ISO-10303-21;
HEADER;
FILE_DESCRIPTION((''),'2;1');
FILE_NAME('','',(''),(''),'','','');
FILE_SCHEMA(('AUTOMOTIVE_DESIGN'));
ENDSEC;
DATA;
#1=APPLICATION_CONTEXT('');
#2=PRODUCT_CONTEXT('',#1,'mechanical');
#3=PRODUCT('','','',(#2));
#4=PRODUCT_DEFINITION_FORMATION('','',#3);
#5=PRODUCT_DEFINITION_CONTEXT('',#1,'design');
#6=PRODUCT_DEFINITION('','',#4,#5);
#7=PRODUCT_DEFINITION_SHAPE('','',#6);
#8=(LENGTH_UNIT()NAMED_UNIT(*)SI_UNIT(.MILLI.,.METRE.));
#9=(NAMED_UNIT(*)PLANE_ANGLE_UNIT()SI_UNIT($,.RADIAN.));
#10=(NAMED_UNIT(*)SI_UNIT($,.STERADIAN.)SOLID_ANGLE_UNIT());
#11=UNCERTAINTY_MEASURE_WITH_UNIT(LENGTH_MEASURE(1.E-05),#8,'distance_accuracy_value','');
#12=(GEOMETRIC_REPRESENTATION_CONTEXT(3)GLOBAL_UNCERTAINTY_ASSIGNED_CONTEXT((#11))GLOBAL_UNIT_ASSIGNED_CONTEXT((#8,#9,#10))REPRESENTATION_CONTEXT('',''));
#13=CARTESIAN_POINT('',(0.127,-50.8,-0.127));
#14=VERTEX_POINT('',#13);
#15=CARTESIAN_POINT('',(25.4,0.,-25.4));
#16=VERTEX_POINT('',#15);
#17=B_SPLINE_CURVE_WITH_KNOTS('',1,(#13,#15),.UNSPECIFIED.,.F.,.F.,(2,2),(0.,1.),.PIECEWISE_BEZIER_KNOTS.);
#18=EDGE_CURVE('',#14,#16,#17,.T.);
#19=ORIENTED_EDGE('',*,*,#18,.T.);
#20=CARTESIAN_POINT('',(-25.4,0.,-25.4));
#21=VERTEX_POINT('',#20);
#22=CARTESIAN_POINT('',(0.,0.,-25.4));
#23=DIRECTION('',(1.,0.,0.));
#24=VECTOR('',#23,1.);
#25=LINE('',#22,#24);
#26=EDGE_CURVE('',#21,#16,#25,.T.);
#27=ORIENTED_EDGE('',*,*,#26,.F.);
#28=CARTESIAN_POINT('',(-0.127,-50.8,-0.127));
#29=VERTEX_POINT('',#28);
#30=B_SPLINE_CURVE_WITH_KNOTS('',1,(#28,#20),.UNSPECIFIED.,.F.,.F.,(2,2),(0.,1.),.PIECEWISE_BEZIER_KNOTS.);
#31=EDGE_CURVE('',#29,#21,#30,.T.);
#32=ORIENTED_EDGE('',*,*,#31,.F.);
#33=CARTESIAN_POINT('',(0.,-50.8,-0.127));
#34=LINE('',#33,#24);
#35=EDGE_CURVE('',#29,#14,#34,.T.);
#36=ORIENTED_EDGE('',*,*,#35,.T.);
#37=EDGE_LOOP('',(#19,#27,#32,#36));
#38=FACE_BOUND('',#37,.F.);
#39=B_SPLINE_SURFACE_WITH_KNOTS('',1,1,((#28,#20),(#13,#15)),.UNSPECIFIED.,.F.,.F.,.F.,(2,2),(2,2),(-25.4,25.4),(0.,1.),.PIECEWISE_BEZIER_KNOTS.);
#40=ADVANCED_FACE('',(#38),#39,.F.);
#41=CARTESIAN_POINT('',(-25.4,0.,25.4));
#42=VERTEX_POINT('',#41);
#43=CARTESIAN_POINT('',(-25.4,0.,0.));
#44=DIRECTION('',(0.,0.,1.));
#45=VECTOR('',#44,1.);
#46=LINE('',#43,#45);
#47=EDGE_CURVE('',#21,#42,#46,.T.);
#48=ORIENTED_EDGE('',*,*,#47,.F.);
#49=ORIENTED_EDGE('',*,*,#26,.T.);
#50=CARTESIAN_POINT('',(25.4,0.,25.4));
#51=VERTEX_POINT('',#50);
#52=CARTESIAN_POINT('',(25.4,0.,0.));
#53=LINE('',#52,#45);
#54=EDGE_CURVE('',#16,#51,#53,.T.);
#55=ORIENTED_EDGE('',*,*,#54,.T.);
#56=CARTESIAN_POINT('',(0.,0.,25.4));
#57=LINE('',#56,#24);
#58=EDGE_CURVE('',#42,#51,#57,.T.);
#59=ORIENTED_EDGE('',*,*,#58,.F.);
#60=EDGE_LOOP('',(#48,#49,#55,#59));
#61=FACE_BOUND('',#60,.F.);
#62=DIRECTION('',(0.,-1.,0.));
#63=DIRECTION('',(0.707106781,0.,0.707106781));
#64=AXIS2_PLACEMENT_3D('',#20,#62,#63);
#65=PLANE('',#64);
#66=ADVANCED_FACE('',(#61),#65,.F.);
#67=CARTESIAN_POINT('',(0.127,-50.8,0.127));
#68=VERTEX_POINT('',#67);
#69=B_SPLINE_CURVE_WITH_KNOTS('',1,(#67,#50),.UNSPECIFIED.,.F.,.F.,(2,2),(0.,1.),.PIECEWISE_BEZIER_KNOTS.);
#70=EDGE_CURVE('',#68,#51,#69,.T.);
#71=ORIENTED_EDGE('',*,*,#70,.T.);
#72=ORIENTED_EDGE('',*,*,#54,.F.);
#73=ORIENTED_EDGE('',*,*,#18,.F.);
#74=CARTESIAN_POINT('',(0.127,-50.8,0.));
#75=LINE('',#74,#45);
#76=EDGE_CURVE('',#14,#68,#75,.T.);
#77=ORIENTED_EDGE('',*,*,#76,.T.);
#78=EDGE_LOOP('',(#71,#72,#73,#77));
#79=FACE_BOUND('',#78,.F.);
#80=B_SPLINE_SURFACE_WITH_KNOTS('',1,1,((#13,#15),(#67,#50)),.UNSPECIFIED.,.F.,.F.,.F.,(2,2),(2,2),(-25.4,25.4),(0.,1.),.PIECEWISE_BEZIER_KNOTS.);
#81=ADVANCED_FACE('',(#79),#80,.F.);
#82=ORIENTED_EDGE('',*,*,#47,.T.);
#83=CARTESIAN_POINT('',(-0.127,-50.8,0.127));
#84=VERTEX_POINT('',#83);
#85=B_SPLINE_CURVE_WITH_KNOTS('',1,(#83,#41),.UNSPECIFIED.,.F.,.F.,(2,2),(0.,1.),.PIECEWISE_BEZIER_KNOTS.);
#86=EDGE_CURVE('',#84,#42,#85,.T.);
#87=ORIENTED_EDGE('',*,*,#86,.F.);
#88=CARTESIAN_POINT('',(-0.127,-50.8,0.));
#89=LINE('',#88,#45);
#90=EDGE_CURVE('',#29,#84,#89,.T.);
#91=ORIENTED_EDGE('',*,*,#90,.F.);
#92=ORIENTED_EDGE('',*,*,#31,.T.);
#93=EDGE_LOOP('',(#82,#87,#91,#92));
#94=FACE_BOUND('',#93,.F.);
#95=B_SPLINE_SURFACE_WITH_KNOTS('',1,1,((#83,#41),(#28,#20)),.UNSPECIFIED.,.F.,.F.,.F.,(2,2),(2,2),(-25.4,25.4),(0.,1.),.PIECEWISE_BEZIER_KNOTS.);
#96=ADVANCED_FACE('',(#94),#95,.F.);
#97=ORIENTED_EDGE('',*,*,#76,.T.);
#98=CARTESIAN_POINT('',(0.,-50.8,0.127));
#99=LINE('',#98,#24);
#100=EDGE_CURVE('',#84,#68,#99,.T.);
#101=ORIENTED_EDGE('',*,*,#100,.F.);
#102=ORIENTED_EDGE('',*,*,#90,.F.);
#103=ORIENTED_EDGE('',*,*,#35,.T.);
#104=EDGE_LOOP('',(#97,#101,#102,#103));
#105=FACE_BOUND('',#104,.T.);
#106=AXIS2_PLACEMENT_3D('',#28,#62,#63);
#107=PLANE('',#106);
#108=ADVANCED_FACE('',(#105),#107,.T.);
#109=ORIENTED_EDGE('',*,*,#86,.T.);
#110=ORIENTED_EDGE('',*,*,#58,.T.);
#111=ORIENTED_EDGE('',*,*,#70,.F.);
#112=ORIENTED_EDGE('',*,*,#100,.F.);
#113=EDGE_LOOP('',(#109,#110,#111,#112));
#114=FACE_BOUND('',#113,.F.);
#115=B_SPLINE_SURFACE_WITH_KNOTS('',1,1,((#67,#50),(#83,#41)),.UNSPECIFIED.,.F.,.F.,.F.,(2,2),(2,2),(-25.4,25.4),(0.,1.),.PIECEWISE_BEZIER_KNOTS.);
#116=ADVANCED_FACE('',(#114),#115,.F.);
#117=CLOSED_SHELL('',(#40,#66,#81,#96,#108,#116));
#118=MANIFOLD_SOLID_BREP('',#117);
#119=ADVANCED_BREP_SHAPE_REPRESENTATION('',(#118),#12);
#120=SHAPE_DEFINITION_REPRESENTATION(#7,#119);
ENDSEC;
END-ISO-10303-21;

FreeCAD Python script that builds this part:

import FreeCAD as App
import Part
import Sketcher
Q = App.Units.Quantity


def add_polygon(sketch, points):
    """Adds a closed chain of lines whose ends are joined by coincident constraints."""
    first, n = sketch.GeometryCount, len(points)
    for a, b in zip(points, points[1:] + points[:1]):
        sketch.addGeometry(Part.LineSegment(App.Vector(*a, 0), App.Vector(*b, 0)), False)
    for i in range(n):
        sketch.addConstraint(Sketcher.Constraint("Coincident", first + i, 2, first + (i + 1) % n, 1))

doc = App.newDocument("Part")
params = doc.addObject("Spreadsheet::Sheet", "Params")
for row, (alias, value) in enumerate([
    ("sketch1_width", "0.01 in"),
    ("sketch2_width", "2 in"),
], start=1):
    params.set(f"A{row}", alias)
    params.set(f"B{row}", "=" + value)
    params.setAlias(f"B{row}", alias)

body = doc.addObject("PartDesign::Body", "Body")

sketch1 = body.newObject("Sketcher::SketchObject", "Sketch")
sketch1.AttachmentSupport = (doc.getObject("XZ_Plane"), [""])
sketch1.MapMode = "FlatFace"
sketch1.AttachmentOffset = App.Placement(App.Vector(0, 0, 2 * 25.4), App.Rotation())
add_polygon(sketch1, [(-0.13, 0.13), (-0.13, -0.13), (0.13, -0.13), (0.13, 0.13)])
sketch1.addConstraint(Sketcher.Constraint("Vertical", 0))
sketch1.addConstraint(Sketcher.Constraint("Horizontal", 1))
sketch1.addConstraint(Sketcher.Constraint("Vertical", 2))
sketch1.addConstraint(Sketcher.Constraint("Horizontal", 3))
sketch1.addConstraint(Sketcher.Constraint("Symmetric", 0, 2, 2, 2, -1, 1))
sketch1.addConstraint(Sketcher.Constraint("Equal", 3, 0))
sketch1.addConstraint(Sketcher.Constraint("DistanceX", 1, 1, 1, 2, Q("0.01 in")))
sketch1.setExpression("Constraints[10]", "Params.sketch1_width")

sketch2 = body.newObject("Sketcher::SketchObject", "Sketch001")
sketch2.AttachmentSupport = (doc.getObject("XZ_Plane"), [""])
sketch2.MapMode = "FlatFace"
add_polygon(sketch2, [(-25, 25), (-25, -25), (25, -25), (25, 25)])
sketch2.addConstraint(Sketcher.Constraint("Vertical", 0))
sketch2.addConstraint(Sketcher.Constraint("Horizontal", 1))
sketch2.addConstraint(Sketcher.Constraint("Vertical", 2))
sketch2.addConstraint(Sketcher.Constraint("Horizontal", 3))
sketch2.addConstraint(Sketcher.Constraint("Symmetric", 0, 2, 2, 2, -1, 1))
sketch2.addConstraint(Sketcher.Constraint("Equal", 3, 0))
sketch2.addConstraint(Sketcher.Constraint("DistanceX", 1, 1, 1, 2, Q("2 in")))
sketch2.setExpression("Constraints[10]", "Params.sketch2_width")

additiveloft = body.newObject("PartDesign::AdditiveLoft", "AdditiveLoft")
additiveloft.Profile = sketch1
additiveloft.Sections = [sketch2]

doc.recompute()
